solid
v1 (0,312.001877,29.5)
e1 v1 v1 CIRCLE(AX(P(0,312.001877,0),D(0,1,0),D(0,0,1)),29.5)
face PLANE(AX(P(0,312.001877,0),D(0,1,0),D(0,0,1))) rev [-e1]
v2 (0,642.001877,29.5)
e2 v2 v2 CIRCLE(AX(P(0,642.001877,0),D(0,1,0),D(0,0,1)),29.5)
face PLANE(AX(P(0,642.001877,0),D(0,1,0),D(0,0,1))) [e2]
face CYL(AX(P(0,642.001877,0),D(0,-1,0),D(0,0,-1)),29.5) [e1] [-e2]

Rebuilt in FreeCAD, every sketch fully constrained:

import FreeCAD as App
import Part
import Sketcher
from FreeCAD import Vector
Q = App.Units.Quantity

doc = App.newDocument("Part")
params = doc.addObject("Spreadsheet::Sheet", "Params")
for row, (alias, value) in enumerate([
    ("sketch1_diameter", "59 mm"),
    ("pad1_length", "330 mm"),
], start=1):
    params.set(f"A{row}", alias)
    params.set(f"B{row}", "=" + value)
    params.setAlias(f"B{row}", alias)

body = doc.addObject("PartDesign::Body", "Body")

sketch1 = body.newObject("Sketcher::SketchObject", "Sketch")
sketch1.AttachmentSupport = (doc.getObject("XZ_Plane"), [""])
sketch1.MapMode = "FlatFace"
sketch1.AttachmentOffset = App.Placement(Vector(0, 0, -312.001877), App.Rotation())
sketch1.addGeometry(Part.Circle(Vector(0, 0, 0), Vector(0, 0, 1), 30), False)
sketch1.addConstraint(Sketcher.Constraint("Coincident", 0, 3, -1, 1))
sketch1.addConstraint(Sketcher.Constraint("Diameter", 0, Q("59 mm")))
sketch1.setExpression("Constraints[1]", "Params.sketch1_diameter")
pad1 = body.newObject("PartDesign::Pad", "Pad")
pad1.Profile = sketch1
pad1.setExpression("Length", "Params.pad1_length")
pad1.Reversed = True

doc.recompute()
